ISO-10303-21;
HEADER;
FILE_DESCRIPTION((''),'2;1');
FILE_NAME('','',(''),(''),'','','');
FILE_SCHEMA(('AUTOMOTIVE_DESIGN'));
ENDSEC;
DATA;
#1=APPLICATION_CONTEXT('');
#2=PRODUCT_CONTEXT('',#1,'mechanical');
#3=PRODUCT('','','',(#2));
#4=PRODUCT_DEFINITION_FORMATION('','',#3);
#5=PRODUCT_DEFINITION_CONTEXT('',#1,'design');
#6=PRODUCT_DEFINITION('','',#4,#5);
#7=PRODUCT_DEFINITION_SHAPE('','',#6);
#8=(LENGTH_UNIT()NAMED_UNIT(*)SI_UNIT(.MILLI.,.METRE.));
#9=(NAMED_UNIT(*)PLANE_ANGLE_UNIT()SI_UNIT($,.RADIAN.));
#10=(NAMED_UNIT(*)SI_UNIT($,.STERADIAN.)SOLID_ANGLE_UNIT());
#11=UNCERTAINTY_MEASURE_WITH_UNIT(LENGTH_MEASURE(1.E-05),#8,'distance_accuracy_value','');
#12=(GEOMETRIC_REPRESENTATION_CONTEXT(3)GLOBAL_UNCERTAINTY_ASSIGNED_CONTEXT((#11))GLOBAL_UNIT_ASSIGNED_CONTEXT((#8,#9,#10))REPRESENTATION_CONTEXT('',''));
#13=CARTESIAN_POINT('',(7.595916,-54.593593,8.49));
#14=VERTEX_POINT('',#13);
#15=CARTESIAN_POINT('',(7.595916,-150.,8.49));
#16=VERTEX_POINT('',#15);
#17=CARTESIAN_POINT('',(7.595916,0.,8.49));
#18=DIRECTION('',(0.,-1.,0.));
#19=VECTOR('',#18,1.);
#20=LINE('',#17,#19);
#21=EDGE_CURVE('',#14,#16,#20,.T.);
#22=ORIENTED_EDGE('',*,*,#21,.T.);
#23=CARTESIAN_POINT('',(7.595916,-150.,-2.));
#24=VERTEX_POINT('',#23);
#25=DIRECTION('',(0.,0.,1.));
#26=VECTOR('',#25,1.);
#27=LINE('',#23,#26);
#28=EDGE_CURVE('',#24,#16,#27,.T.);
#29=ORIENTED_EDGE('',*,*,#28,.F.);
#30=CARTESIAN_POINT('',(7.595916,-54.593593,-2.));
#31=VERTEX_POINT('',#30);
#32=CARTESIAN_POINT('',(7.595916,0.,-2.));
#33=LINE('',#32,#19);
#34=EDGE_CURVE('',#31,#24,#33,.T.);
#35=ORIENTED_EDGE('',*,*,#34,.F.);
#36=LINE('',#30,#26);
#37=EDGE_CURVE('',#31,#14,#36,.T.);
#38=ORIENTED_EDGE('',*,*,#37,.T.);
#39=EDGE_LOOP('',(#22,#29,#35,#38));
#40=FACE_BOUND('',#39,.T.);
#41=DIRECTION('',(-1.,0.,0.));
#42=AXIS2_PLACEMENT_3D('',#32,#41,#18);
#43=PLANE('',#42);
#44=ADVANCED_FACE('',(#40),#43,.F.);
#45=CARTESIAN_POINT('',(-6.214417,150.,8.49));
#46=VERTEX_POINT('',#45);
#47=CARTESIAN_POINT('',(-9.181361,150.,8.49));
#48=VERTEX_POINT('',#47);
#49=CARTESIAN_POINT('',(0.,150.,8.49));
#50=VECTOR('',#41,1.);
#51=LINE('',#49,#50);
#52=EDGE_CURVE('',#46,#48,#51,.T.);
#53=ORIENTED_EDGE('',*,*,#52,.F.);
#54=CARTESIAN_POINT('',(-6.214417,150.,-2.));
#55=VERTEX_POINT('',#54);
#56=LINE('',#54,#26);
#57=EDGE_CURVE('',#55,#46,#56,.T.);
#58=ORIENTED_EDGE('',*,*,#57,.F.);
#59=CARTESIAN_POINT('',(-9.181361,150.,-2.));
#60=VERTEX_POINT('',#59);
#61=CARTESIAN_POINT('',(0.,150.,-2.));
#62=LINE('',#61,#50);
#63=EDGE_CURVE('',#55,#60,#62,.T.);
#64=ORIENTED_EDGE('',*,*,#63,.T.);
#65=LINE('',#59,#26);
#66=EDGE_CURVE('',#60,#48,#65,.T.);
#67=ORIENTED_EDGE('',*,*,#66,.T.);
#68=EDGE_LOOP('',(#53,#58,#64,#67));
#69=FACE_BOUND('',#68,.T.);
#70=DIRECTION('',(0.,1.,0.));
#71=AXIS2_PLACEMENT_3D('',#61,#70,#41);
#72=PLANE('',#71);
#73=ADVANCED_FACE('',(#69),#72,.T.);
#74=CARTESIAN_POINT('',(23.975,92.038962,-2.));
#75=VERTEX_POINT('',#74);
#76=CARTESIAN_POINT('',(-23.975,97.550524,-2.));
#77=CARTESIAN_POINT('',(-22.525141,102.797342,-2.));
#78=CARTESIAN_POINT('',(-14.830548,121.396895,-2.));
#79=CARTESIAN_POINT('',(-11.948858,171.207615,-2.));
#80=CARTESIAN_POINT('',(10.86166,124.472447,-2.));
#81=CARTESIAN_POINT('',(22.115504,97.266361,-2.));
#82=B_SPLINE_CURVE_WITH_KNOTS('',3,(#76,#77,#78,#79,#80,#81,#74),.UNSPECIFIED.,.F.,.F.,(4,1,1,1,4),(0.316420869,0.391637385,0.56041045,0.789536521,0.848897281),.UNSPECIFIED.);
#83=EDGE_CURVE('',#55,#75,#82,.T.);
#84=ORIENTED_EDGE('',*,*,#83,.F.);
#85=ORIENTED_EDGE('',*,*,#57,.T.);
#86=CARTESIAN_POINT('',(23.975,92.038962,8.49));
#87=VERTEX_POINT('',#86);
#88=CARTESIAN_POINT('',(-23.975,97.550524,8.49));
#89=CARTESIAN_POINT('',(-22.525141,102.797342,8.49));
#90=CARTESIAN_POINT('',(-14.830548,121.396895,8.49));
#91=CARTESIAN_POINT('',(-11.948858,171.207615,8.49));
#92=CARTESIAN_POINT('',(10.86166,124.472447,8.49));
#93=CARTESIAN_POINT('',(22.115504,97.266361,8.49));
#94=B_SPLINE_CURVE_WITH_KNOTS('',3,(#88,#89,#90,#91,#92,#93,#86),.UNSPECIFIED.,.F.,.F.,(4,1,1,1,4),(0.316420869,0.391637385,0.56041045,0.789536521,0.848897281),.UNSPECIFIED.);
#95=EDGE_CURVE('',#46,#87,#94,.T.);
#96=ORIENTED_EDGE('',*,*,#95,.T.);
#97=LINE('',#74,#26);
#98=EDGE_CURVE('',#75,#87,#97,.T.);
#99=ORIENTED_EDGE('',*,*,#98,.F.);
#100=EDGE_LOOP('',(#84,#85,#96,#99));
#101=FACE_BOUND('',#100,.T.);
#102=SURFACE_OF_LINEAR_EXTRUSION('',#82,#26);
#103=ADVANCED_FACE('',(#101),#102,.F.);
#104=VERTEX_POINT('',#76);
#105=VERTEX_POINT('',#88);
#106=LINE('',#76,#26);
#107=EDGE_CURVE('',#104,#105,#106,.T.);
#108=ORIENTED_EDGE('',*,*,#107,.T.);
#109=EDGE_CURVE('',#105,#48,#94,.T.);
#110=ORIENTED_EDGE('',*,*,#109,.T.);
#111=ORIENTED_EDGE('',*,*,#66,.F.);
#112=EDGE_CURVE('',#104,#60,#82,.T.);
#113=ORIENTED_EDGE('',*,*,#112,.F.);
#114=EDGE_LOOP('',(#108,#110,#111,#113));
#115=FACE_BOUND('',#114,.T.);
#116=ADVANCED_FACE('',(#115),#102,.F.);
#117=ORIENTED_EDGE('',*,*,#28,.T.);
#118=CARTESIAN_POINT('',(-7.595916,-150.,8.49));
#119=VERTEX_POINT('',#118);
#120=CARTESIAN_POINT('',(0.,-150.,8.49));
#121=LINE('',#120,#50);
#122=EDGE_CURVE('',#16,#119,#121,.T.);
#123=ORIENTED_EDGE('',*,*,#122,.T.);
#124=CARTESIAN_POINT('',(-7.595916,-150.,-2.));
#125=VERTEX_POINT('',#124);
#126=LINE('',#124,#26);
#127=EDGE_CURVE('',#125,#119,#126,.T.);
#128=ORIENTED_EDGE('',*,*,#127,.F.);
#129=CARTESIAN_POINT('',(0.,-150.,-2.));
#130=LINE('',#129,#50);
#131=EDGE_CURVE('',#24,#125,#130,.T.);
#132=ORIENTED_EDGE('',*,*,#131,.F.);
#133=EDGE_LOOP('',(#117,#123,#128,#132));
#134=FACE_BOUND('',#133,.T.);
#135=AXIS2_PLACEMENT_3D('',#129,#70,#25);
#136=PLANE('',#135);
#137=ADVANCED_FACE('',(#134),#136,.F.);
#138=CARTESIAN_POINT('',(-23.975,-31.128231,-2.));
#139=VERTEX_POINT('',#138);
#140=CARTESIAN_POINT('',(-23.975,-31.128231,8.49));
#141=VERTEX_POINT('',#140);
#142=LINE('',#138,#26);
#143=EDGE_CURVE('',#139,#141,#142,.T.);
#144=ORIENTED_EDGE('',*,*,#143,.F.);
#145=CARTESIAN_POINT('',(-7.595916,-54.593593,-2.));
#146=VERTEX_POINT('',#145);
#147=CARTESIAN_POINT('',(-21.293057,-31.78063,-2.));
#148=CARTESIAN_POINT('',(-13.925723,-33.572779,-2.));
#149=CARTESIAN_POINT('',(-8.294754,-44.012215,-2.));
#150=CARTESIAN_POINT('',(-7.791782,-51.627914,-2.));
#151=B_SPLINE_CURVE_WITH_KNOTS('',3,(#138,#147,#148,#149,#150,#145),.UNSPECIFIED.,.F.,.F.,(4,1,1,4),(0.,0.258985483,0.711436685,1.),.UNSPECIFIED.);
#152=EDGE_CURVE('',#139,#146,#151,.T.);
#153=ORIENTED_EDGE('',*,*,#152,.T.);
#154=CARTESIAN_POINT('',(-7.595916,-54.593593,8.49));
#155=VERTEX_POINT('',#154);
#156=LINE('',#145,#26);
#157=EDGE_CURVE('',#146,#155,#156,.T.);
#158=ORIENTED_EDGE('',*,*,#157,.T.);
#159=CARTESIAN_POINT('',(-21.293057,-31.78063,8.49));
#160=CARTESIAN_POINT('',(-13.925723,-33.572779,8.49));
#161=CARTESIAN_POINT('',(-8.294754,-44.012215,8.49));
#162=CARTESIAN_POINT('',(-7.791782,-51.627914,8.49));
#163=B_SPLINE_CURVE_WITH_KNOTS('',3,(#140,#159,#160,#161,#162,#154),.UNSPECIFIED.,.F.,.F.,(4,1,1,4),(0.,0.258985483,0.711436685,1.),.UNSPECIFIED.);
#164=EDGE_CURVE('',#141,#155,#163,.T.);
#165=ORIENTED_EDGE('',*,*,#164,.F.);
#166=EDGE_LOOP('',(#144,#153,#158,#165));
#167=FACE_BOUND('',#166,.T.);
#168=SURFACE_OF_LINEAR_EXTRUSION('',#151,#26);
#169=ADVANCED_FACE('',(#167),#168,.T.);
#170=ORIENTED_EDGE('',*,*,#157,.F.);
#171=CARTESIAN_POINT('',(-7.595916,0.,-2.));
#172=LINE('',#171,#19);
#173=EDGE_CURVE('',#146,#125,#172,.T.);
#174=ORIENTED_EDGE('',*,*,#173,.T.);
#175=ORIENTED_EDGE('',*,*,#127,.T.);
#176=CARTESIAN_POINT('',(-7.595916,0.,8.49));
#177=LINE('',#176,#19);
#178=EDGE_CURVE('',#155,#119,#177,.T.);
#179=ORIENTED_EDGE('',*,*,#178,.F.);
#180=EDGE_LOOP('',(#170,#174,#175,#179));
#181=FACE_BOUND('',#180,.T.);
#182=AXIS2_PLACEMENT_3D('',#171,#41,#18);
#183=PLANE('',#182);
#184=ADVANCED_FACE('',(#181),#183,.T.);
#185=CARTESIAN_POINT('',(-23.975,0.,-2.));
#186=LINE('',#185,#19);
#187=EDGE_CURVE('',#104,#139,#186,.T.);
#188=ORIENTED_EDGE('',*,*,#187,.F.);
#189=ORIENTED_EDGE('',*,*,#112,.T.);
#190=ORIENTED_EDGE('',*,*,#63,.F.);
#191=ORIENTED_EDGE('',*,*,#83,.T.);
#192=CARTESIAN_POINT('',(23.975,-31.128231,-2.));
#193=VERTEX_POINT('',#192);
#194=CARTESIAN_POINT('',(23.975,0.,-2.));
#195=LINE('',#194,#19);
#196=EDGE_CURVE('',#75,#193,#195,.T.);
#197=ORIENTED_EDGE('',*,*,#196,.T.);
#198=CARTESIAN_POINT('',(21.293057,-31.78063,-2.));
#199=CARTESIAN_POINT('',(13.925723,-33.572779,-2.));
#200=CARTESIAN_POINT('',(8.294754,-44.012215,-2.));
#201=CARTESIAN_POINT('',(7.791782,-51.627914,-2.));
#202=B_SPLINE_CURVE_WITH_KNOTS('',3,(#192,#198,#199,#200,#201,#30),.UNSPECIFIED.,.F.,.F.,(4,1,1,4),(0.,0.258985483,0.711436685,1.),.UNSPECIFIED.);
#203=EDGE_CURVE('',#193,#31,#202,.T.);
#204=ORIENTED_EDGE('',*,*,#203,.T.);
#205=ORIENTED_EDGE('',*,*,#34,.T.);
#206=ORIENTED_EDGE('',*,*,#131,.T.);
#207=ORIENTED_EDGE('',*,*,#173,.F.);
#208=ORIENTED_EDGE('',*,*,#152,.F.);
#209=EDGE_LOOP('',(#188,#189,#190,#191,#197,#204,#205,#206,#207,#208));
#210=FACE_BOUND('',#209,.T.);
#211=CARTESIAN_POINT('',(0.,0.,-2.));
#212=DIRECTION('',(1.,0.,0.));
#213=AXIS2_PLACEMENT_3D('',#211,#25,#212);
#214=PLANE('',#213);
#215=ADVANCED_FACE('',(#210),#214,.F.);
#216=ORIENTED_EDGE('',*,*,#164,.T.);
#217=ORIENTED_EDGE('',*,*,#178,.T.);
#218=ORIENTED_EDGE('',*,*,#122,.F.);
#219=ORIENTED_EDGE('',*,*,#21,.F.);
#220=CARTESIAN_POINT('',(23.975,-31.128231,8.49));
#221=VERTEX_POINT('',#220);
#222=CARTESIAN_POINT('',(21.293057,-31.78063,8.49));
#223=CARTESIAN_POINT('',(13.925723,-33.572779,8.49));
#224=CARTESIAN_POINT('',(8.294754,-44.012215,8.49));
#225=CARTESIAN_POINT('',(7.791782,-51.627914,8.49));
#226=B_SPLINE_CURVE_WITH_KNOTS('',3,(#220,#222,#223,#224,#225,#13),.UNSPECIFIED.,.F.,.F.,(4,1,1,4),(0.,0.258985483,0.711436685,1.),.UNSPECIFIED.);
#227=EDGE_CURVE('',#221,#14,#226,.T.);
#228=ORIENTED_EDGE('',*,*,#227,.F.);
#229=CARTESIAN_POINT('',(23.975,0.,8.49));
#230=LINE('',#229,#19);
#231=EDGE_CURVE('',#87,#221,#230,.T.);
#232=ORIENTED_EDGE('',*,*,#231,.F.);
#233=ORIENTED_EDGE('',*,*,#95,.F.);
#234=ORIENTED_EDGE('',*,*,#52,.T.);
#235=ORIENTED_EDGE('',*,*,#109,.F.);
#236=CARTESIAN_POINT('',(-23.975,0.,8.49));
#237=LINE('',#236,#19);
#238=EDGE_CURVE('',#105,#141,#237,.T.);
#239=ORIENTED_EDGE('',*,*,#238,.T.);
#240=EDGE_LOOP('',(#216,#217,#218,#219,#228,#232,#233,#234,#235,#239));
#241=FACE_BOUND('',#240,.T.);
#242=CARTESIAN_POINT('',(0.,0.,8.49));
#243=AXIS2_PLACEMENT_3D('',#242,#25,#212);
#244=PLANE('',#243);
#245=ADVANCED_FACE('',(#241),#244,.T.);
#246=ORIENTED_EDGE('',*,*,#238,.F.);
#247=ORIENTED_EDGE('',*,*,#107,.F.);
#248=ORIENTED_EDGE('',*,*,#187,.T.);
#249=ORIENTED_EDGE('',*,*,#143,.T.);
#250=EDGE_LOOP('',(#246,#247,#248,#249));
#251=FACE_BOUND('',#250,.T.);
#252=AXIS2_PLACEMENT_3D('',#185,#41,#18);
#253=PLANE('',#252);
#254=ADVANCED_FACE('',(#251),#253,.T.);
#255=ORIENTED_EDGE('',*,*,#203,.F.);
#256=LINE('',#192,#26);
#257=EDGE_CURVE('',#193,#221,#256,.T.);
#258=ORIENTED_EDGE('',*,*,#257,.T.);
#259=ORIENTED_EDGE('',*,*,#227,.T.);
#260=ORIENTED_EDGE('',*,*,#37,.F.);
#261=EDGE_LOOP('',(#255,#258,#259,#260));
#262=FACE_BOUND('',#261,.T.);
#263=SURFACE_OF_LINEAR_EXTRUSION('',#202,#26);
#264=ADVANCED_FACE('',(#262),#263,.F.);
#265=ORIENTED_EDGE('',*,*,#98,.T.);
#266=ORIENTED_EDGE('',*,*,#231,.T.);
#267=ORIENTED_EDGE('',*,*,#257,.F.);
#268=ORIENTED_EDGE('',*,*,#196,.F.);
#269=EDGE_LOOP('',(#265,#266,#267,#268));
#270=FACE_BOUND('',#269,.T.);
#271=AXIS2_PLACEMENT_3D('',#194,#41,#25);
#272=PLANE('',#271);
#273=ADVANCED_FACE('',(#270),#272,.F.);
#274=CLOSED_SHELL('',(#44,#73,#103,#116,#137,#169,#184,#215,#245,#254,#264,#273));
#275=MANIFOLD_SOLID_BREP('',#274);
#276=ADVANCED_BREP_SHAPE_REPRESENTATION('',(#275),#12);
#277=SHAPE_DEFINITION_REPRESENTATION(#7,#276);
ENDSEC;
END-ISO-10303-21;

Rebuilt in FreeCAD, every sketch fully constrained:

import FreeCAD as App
import Part
import Sketcher

doc = App.newDocument("Part")
body = doc.addObject("PartDesign::Body", "Body")

# Sketch on XY plane
sketch1 = body.newObject("Sketcher::SketchObject", "Sketch")
sketch1.AttachmentSupport = (doc.getObject("XY_Plane"), [""])
sketch1.MapMode = "FlatFace"
sketch1.addGeometry(Part.BSplineCurve([App.Vector(-6.214417, 150, 0), App.Vector(-0.083681, 146.83666, 0), App.Vector(12.227049, 121.171627, 0), App.Vector(22.115504, 97.266361, 0), App.Vector(23.975, 92.038962, 0)], [4, 1, 4], [0.59541155, 0.789536521, 0.848897281], False, 3, [1, 1, 1, 1, 1], False), False)
sketch1.addGeometry(Part.LineSegment(App.Vector(-6.214417, 150, 0), App.Vector(-9.181361, 150, 0)), False)
sketch1.addGeometry(Part.BSplineCurve([App.Vector(-23.975, 97.550524, 0), App.Vector(-22.525141, 102.797342, 0), App.Vector(-14.830548, 121.396895, 0), App.Vector(-13.344437, 147.084687, 0), App.Vector(-9.181361, 150, 0)], [4, 1, 4], [0.316420869, 0.391637385, 0.56041045], False, 3, [1, 1, 1, 1, 1], False), False)
sketch1.addGeometry(Part.LineSegment(App.Vector(-23.975, 97.550524, 0), App.Vector(-23.975, -31.128231, 0)), False)
sketch1.addGeometry(Part.BSplineCurve([App.Vector(-23.975, -31.128231, 0), App.Vector(-21.293057, -31.78063, 0), App.Vector(-13.925723, -33.572779, 0), App.Vector(-8.294754, -44.012215, 0), App.Vector(-7.791782, -51.627914, 0), App.Vector(-7.595916, -54.593593, 0)], [4, 1, 1, 4], [0, 0.258985483, 0.711436685, 1], False, 3, [1, 1, 1, 1, 1, 1], False), False)
sketch1.addGeometry(Part.LineSegment(App.Vector(-7.595916, -54.593593, 0), App.Vector(-7.595916, -150, 0)), False)
sketch1.addGeometry(Part.LineSegment(App.Vector(-7.595916, -150, 0), App.Vector(7.595916, -150, 0)), False)
sketch1.addGeometry(Part.LineSegment(App.Vector(7.595916, -150, 0), App.Vector(7.595916, -54.593593, 0)), False)
sketch1.addGeometry(Part.BSplineCurve([App.Vector(23.975, -31.128231, 0), App.Vector(21.293057, -31.78063, 0), App.Vector(13.925723, -33.572779, 0), App.Vector(8.294754, -44.012215, 0), App.Vector(7.791782, -51.627914, 0), App.Vector(7.595916, -54.593593, 0)], [4, 1, 1, 4], [0, 0.258985483, 0.711436685, 1], False, 3, [1, 1, 1, 1, 1, 1], False), False)
sketch1.addGeometry(Part.LineSegment(App.Vector(23.975, -31.128231, 0), App.Vector(23.975, 92.038962, 0)), False)
sketch1.addConstraint(Sketcher.Constraint("Block", 0))
sketch1.addConstraint(Sketcher.Constraint("Block", 2))
sketch1.addConstraint(Sketcher.Constraint("Block", 4))
sketch1.addConstraint(Sketcher.Constraint("Block", 8))
sketch1.addConstraint(Sketcher.Constraint("Coincident", 0, 1, 1, 1))
sketch1.addConstraint(Sketcher.Constraint("Coincident", 1, 2, 2, 2))
sketch1.addConstraint(Sketcher.Constraint("Coincident", 2, 1, 3, 1))
sketch1.addConstraint(Sketcher.Constraint("Coincident", 3, 2, 4, 1))
sketch1.addConstraint(Sketcher.Constraint("Coincident", 4, 2, 5, 1))
sketch1.addConstraint(Sketcher.Constraint("Coincident", 5, 2, 6, 1))
sketch1.addConstraint(Sketcher.Constraint("Coincident", 6, 2, 7, 1))
sketch1.addConstraint(Sketcher.Constraint("Coincident", 7, 2, 8, 2))
sketch1.addConstraint(Sketcher.Constraint("Coincident", 8, 1, 9, 1))
sketch1.addConstraint(Sketcher.Constraint("Coincident", 9, 2, 0, 2))
sketch1.addConstraint(Sketcher.Constraint("Vertical", 5))
sketch1.addConstraint(Sketcher.Constraint("Horizontal", 6))
sketch1.addConstraint(Sketcher.Constraint("Vertical", 7))
sketch1.addConstraint(Sketcher.Constraint("DistanceY", 5, 2, -1, 1, 150.0))
pad1 = body.newObject("PartDesign::Pad", "Pad")
pad1.Profile = sketch1
pad1.Type = "TwoLengths"
pad1.Length = 8.49
pad1.Length2 = 2

doc.recompute()
